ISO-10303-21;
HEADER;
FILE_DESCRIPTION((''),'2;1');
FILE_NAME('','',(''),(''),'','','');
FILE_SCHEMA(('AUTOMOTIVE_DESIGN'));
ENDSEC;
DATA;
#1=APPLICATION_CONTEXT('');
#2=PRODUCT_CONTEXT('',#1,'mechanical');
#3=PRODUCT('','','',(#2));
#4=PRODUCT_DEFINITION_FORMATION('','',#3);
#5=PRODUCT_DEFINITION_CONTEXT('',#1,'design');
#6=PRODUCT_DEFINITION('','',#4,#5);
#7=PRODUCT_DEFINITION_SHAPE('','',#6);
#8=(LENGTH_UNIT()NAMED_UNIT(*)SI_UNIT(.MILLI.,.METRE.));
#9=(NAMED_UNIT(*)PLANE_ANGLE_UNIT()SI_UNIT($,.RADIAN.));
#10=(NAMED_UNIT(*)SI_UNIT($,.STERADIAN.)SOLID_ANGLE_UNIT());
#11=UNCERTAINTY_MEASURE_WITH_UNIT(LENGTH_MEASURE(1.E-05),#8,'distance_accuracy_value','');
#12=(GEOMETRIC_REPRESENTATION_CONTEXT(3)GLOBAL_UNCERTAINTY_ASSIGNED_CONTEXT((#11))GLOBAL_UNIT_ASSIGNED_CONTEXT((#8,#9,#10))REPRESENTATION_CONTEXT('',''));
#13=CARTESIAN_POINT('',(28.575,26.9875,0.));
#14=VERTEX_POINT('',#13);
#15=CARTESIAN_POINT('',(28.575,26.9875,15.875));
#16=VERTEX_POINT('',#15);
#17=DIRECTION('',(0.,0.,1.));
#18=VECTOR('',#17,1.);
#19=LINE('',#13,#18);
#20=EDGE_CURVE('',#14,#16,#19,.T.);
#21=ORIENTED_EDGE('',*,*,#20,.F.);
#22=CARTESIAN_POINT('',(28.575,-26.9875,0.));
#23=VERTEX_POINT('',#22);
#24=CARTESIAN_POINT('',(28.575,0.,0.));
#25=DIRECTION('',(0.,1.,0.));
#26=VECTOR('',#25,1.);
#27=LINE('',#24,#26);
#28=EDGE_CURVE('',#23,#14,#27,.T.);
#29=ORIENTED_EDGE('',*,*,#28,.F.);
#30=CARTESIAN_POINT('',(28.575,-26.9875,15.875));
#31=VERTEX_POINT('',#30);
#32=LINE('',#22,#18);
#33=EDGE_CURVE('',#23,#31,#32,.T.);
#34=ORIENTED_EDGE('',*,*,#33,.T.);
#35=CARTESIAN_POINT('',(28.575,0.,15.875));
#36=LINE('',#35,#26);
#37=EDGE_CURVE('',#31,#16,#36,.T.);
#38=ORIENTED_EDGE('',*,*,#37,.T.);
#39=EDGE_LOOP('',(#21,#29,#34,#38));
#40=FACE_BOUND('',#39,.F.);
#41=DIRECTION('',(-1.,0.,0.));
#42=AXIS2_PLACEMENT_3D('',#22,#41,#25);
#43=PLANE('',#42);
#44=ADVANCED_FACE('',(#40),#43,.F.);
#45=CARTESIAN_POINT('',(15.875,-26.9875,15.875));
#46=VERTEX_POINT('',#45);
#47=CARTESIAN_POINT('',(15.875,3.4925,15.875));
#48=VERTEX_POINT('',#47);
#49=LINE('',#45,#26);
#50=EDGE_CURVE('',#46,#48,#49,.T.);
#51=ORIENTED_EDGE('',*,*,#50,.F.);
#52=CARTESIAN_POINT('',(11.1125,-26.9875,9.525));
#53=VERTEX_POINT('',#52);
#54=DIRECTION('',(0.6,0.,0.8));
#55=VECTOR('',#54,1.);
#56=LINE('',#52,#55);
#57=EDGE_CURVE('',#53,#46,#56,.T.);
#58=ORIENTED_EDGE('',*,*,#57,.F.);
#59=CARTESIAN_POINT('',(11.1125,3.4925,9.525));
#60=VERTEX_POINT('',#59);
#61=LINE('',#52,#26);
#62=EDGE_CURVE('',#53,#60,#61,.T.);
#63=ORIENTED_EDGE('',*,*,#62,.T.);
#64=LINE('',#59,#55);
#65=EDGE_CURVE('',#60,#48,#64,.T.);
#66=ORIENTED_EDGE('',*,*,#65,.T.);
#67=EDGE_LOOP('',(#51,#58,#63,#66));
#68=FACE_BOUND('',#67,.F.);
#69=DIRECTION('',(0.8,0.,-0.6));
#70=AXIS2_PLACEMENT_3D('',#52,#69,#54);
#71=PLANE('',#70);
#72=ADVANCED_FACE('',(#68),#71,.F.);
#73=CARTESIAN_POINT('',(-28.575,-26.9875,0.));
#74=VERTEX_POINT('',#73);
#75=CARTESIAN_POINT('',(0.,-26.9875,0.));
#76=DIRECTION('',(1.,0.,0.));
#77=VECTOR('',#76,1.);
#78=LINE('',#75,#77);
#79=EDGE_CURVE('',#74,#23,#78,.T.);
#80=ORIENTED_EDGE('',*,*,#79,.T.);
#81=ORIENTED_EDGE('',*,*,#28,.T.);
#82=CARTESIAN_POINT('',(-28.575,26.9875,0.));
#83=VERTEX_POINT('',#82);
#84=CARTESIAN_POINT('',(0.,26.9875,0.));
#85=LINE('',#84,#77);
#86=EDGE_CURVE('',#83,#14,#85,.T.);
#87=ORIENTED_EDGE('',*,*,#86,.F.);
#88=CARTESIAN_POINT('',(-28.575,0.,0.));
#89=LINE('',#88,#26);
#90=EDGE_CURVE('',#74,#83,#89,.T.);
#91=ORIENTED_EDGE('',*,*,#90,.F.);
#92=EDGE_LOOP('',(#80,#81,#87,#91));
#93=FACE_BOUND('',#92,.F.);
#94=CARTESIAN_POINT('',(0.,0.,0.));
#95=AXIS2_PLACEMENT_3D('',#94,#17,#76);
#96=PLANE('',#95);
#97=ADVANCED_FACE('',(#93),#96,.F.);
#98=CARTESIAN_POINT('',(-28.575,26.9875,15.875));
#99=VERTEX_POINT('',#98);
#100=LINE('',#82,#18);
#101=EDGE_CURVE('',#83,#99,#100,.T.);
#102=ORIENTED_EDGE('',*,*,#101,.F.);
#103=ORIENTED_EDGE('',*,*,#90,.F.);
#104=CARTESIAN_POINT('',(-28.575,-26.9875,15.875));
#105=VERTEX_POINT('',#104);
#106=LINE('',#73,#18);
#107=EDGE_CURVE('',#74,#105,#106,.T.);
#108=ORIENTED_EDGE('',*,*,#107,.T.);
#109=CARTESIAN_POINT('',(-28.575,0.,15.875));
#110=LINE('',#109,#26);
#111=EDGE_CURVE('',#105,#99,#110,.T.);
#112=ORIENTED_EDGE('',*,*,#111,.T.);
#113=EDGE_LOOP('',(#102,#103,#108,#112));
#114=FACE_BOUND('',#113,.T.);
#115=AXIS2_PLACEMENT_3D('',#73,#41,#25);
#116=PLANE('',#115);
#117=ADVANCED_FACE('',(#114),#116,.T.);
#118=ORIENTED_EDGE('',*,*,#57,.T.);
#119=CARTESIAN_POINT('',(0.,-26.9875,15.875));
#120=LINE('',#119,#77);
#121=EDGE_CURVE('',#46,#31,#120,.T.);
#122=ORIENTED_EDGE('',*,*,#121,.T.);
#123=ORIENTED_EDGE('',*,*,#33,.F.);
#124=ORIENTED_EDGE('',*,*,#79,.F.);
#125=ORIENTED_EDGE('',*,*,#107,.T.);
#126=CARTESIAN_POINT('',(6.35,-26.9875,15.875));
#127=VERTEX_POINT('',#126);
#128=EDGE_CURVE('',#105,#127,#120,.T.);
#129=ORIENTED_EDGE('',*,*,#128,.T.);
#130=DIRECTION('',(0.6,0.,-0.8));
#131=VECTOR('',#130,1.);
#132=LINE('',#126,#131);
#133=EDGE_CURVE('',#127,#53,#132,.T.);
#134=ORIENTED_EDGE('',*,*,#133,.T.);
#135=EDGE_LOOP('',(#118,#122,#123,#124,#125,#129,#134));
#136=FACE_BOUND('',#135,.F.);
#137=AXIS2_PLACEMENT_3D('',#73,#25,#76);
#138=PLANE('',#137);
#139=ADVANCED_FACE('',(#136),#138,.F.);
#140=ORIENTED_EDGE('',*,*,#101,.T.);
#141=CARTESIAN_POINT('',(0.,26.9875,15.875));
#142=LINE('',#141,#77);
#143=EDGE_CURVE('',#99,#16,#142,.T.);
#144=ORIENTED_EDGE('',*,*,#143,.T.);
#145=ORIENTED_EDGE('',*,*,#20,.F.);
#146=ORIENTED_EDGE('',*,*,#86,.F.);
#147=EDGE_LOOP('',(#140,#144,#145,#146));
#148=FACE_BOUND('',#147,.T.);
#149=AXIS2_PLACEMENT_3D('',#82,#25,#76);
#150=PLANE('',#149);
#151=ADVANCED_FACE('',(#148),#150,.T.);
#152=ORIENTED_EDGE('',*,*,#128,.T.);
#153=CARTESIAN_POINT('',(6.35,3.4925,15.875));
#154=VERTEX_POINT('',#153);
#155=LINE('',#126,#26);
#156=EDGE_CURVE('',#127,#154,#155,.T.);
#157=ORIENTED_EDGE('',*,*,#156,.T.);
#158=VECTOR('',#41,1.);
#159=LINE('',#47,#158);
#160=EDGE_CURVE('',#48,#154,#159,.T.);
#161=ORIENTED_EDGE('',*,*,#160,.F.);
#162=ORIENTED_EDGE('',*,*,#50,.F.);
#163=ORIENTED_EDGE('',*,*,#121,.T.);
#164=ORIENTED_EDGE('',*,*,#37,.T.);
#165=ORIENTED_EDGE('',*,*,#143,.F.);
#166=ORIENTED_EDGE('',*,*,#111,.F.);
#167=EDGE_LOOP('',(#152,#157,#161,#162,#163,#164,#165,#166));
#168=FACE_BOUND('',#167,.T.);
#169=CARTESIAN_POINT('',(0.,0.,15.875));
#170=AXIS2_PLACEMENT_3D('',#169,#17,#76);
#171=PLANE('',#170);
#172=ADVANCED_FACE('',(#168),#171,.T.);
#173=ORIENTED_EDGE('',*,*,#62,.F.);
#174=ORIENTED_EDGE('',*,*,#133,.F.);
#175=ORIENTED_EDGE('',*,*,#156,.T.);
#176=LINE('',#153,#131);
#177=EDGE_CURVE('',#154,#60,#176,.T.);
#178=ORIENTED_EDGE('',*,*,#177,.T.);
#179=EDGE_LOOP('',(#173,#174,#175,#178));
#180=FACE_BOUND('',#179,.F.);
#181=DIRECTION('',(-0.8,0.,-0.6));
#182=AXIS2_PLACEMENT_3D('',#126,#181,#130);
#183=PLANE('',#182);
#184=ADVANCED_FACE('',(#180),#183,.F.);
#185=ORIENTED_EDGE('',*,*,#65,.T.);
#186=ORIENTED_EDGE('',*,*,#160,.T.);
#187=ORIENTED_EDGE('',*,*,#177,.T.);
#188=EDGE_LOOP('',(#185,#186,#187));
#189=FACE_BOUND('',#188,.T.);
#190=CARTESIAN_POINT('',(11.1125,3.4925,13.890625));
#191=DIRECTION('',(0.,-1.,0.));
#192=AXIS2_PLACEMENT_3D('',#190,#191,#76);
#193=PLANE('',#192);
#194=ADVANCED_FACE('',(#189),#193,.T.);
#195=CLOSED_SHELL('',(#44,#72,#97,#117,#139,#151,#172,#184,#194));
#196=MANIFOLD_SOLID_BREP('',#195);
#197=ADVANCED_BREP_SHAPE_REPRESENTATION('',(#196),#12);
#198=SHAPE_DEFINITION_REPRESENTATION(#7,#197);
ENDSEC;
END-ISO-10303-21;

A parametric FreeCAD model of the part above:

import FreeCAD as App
import Part
import Sketcher

V = App.Vector
Q = App.Units.Quantity

doc = App.newDocument("Part")
body = doc.addObject("PartDesign::Body", "Body")

# Sketch on XY plane
sketch1 = body.newObject("Sketcher::SketchObject", "Sketch")
sketch1.AttachmentSupport = (doc.getObject("XY_Plane"), [""])
sketch1.MapMode = "FlatFace"
sketch1.addGeometry([
    Part.LineSegment(V(-28.575, 26.9875, 0), V(-28.575, -26.9875, 0)),
    Part.LineSegment(V(-28.575, -26.9875, 0), V(28.575, -26.9875, 0)),
    Part.LineSegment(V(28.575, -26.9875, 0), V(28.575, 26.9875, 0)),
    Part.LineSegment(V(28.575, 26.9875, 0), V(-28.575, 26.9875, 0)),
], False)
sketch1.addConstraint([
    Sketcher.Constraint("Coincident", 0, 2, 1, 1),
    Sketcher.Constraint("Coincident", 1, 2, 2, 1),
    Sketcher.Constraint("Coincident", 2, 2, 3, 1),
    Sketcher.Constraint("Coincident", 3, 2, 0, 1),
    Sketcher.Constraint("Vertical", 0),
    Sketcher.Constraint("Horizontal", 1),
    Sketcher.Constraint("Vertical", 2),
    Sketcher.Constraint("Horizontal", 3),
    Sketcher.Constraint("Symmetric", 0, 2, 2, 2, -1, 1),
    Sketcher.Constraint("DistanceX", 1, 1, 1, 2, Q("2.25 in")),
    Sketcher.Constraint("DistanceY", 0, 2, 0, 1, Q("2.125 in")),
])
pad1 = body.newObject("PartDesign::Pad", "Pad")
pad1.Profile = sketch1
pad1.Length = Q("0.625 in")

# Sketch on XZ plane
sketch2 = body.newObject("Sketcher::SketchObject", "Sketch001")
sketch2.AttachmentSupport = (doc.getObject("XZ_Plane"), [""])
sketch2.MapMode = "FlatFace"
sketch2.AttachmentOffset = App.Placement(V(0, 0, 1.0625 * 25.4), App.Rotation())
sketch2.addGeometry([
    Part.LineSegment(V(15.875, 15.875, 0), V(6.35, 15.875, 0)),
    Part.LineSegment(V(6.35, 15.875, 0), V(11.1125, 9.525, 0)),
    Part.LineSegment(V(11.1125, 9.525, 0), V(15.875, 15.875, 0)),
], False)
sketch2.addConstraint([
    Sketcher.Constraint("Coincident", 0, 2, 1, 1),
    Sketcher.Constraint("Coincident", 1, 2, 2, 1),
    Sketcher.Constraint("Coincident", 2, 2, 0, 1),
    Sketcher.Constraint("Horizontal", 0),
    Sketcher.Constraint("Equal", 1, 2),
    Sketcher.Constraint("DistanceX", 0, 2, 0, 1, Q("0.375 in")),
    Sketcher.Constraint("DistanceX", -1, 1, 0, 2, Q("0.25 in")),
    Sketcher.Constraint("DistanceY", 1, 2, 0, 2, Q("0.25 in")),
    Sketcher.Constraint("DistanceY", -1, 1, 0, 2, Q("0.625 in")),
])
pocket1 = body.newObject("PartDesign::Pocket", "Pocket")
pocket1.Profile = sketch2
pocket1.Length = Q("1.2 in")

doc.recompute()
